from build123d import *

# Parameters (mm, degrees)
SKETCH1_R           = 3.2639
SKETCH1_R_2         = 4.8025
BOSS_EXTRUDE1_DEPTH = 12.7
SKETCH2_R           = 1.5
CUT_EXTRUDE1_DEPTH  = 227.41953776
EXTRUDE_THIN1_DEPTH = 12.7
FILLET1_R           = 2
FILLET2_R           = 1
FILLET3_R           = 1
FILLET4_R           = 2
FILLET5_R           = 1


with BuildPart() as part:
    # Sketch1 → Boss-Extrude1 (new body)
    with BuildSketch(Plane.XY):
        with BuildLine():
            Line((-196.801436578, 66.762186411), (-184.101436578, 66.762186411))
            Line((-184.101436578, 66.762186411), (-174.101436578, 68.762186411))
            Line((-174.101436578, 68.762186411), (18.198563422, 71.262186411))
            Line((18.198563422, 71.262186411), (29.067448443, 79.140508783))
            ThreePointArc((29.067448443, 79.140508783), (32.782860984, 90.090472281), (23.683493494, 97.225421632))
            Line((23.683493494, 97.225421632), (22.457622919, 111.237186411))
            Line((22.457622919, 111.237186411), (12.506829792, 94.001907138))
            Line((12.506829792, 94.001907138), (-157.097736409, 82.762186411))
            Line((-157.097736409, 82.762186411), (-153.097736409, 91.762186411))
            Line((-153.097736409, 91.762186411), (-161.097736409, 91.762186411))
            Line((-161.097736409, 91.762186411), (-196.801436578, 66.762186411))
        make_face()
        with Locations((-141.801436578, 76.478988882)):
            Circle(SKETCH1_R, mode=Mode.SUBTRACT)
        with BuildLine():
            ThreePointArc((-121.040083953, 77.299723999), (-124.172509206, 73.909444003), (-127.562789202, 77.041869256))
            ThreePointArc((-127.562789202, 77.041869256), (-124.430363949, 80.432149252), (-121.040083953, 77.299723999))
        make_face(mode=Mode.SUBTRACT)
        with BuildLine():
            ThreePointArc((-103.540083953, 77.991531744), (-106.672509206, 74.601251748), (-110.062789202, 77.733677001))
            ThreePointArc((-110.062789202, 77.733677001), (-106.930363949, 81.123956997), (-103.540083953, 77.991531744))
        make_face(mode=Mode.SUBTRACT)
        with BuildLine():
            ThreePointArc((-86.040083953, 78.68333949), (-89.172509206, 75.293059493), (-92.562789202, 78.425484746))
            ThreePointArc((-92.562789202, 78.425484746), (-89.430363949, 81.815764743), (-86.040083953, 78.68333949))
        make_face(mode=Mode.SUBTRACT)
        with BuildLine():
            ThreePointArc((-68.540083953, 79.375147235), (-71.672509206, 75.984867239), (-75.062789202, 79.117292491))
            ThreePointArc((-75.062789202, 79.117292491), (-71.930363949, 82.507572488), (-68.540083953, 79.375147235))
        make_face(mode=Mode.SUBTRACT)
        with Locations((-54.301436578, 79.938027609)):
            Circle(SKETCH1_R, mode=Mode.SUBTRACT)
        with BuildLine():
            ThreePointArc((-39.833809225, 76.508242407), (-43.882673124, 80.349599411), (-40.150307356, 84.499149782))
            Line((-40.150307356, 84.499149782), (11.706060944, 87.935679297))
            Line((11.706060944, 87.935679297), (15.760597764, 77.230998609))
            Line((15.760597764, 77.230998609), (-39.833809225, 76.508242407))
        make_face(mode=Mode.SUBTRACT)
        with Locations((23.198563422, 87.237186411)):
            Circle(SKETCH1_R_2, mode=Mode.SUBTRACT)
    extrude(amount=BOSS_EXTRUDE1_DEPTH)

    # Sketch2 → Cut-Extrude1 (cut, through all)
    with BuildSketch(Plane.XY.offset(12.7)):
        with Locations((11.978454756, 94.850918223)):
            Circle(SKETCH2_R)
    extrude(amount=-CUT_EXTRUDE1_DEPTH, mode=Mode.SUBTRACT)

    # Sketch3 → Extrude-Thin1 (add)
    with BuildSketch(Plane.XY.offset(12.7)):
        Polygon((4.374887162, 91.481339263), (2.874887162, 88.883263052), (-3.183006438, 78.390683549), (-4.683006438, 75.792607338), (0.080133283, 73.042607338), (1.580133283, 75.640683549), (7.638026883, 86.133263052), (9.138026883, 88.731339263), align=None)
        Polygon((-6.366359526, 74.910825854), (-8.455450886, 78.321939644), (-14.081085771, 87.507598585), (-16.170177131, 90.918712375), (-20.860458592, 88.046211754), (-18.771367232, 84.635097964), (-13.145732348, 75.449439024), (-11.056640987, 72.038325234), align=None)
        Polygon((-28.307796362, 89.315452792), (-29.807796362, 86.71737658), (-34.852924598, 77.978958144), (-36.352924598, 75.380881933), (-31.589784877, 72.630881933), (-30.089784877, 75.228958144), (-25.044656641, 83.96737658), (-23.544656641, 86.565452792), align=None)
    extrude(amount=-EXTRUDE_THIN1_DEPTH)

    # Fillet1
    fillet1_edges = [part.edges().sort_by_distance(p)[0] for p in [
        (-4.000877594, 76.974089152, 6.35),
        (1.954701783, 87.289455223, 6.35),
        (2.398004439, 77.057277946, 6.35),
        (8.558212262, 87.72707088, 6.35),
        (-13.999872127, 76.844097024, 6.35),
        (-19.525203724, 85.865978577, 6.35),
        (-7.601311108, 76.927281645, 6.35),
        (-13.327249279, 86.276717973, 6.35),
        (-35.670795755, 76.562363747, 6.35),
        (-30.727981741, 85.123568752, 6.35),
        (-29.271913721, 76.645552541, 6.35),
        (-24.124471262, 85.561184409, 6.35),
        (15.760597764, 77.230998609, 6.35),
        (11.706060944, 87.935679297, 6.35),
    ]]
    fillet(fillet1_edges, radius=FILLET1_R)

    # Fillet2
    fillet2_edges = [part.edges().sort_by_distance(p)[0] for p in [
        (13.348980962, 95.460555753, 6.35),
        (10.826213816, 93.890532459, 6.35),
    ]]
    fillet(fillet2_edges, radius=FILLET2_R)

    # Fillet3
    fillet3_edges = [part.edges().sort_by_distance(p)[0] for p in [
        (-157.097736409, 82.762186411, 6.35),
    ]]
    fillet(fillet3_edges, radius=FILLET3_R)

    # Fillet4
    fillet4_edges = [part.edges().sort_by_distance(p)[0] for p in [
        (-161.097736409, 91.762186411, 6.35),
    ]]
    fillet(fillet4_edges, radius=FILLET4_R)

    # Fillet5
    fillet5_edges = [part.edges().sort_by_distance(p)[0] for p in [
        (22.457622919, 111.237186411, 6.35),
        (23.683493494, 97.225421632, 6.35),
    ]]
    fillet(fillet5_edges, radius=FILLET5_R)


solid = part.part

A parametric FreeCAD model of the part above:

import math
import FreeCAD as App
import Part
import Sketcher
from FreeCAD import Vector
Q = App.Units.Quantity


def edges_at(feature, points):
    """Names of the edges that pass closest to the given points."""
    edges = feature.Shape.Edges
    near = lambda p: min(range(len(edges)), key=lambda i: edges[i].distToShape(Part.Vertex(*p))[0])
    return sorted({f"Edge{near(p) + 1}" for p in points})


def add_polygon(sketch, points):
    """Adds a closed chain of lines whose ends are joined by coincident constraints."""
    first, n = sketch.GeometryCount, len(points)
    for a, b in zip(points, points[1:] + points[:1]):
        sketch.addGeometry(Part.LineSegment(App.Vector(*a, 0), App.Vector(*b, 0)), False)
    for i in range(n):
        sketch.addConstraint(Sketcher.Constraint("Coincident", first + i, 2, first + (i + 1) % n, 1))

doc = App.newDocument("Part")
body = doc.addObject("PartDesign::Body", "Body")

sketch1 = body.newObject("Sketcher::SketchObject", "Sketch")
sketch1.AttachmentSupport = (doc.getObject("XY_Plane"), [""])
sketch1.MapMode = "FlatFace"
sketch1.addGeometry([
    Part.LineSegment(Vector(-196.801437, 66.762186, 0), Vector(-184.101437, 66.762186, 0)),
    Part.LineSegment(Vector(-184.101437, 66.762186, 0), Vector(-174.101437, 68.762186, 0)),
    Part.LineSegment(Vector(-174.101437, 68.762186, 0), Vector(18.198563, 71.262186, 0)),
    Part.LineSegment(Vector(18.198563, 71.262186, 0), Vector(29.067448, 79.140509, 0)),
    Part.ArcOfCircle(Part.Circle(Vector(23.198563, 87.237186, 0), Vector(0, 0, 1), 10), math.radians(-54.063484), math.radians(87.220465)),
    Part.LineSegment(Vector(23.683493, 97.225422, 0), Vector(22.457623, 111.237186, 0)),
    Part.LineSegment(Vector(22.457623, 111.237186, 0), Vector(12.50683, 94.001907, 0)),
    Part.LineSegment(Vector(12.50683, 94.001907, 0), Vector(-157.097736, 82.762186, 0)),
    Part.LineSegment(Vector(-157.097736, 82.762186, 0), Vector(-153.097736, 91.762186, 0)),
    Part.LineSegment(Vector(-153.097736, 91.762186, 0), Vector(-161.097736, 91.762186, 0)),
    Part.LineSegment(Vector(-161.097736, 91.762186, 0), Vector(-196.801437, 66.762186, 0)),
    Part.Circle(Vector(-141.801437, 76.478989, 0), Vector(0, 0, 1), 3.2639),
    Part.Circle(Vector(-124.301437, 77.170797, 0), Vector(0, 0, 1), 3.2639),
    Part.Circle(Vector(-106.801437, 77.862604, 0), Vector(0, 0, 1), 3.2639),
    Part.ArcOfCircle(Part.Circle(Vector(-89.301437, 78.554412, 0), Vector(0, 0, 1), 3.2639), math.radians(2.263831), math.radians(182.263831)),
    Part.ArcOfCircle(Part.Circle(Vector(-89.301437, 78.554412, 0), Vector(0, 0, 1), 3.2639), math.radians(-177.736169), math.radians(2.263831)),
    Part.ArcOfCircle(Part.Circle(Vector(-71.801437, 79.24622, 0), Vector(0, 0, 1), 3.2639), math.radians(2.263831), math.radians(182.263831)),
    Part.ArcOfCircle(Part.Circle(Vector(-71.801437, 79.24622, 0), Vector(0, 0, 1), 3.2639), math.radians(-177.736169), math.radians(2.263831)),
    Part.Circle(Vector(-54.301437, 79.938028, 0), Vector(0, 0, 1), 3.2639),
    Part.LineSegment(Vector(15.760598, 77.230999, 0), Vector(-39.833809, 76.508242, 0)),
    Part.ArcOfCircle(Part.Circle(Vector(-39.885807, 80.507904, 0), Vector(0, 0, 1), 4), math.radians(93.791456), math.radians(270.744833)),
    Part.LineSegment(Vector(-40.150307, 84.49915, 0), Vector(11.706061, 87.935679, 0)),
    Part.LineSegment(Vector(11.706061, 87.935679, 0), Vector(15.760598, 77.230999, 0)),
    Part.Circle(Vector(23.198563, 87.237186, 0), Vector(0, 0, 1), 4.8025),
], False)
sketch1.addConstraint([
    Sketcher.Constraint("Coincident", 0, 2, 1, 1),
    Sketcher.Constraint("Coincident", 1, 2, 2, 1),
    Sketcher.Constraint("Coincident", 2, 2, 3, 1),
    Sketcher.Constraint("Coincident", 3, 2, 4, 1),
    Sketcher.Constraint("Coincident", 4, 2, 5, 1),
    Sketcher.Constraint("Coincident", 5, 2, 6, 1),
    Sketcher.Constraint("Coincident", 6, 2, 7, 1),
    Sketcher.Constraint("Coincident", 7, 2, 8, 1),
    Sketcher.Constraint("Coincident", 8, 2, 9, 1),
    Sketcher.Constraint("Coincident", 9, 2, 10, 1),
    Sketcher.Constraint("Coincident", 10, 2, 0, 1),
    Sketcher.Constraint("Coincident", 14, 1, 15, 2),
    Sketcher.Constraint("Coincident", 15, 1, 14, 2),
    Sketcher.Constraint("Coincident", 16, 1, 17, 2),
    Sketcher.Constraint("Coincident", 17, 1, 16, 2),
    Sketcher.Constraint("Coincident", 19, 2, 20, 2),
    Sketcher.Constraint("Coincident", 20, 1, 21, 1),
    Sketcher.Constraint("Coincident", 21, 2, 22, 1),
    Sketcher.Constraint("Coincident", 22, 2, 19, 1),
    Sketcher.Constraint("Horizontal", 0),
    Sketcher.Constraint("Horizontal", 9),
    Sketcher.Constraint("Coincident", 23, 3, 4, 3),
    Sketcher.Constraint("Radius", 4, 10.0),
    Sketcher.Constraint("Radius", 20, 4.0),
    Sketcher.Constraint("DistanceX", 9, 2, 9, 1, 8.0),
    Sketcher.Constraint("Diameter", 23, 9.605),
    Sketcher.Constraint("DistanceX", 0, 1, 0, 2, 12.7),
    Sketcher.Constraint("DistanceX", 11, 3, 4, 3, 165.0),
    Sketcher.Constraint("DistanceX", 11, 3, 13, 3, 35.0),
    Sketcher.Constraint("DistanceX", 12, 3, 14, 3, 35.0),
    Sketcher.Constraint("DistanceX", 12, 3, 15, 3, 35.0),
    Sketcher.Constraint("DistanceX", 13, 3, 16, 3, 35.0),
    Sketcher.Constraint("DistanceX", 13, 3, 17, 3, 35.0),
    Sketcher.Constraint("DistanceX", 15, 3, 18, 3, 35.0),
    Sketcher.Constraint("DistanceX", 0, 2, 1, 2, 10.0),
    Sketcher.Constraint("DistanceY", 0, 2, 1, 2, 2.0),
    Sketcher.Constraint("DistanceX", 2, 2, 23, 3, 5.0),
    Sketcher.Constraint("DistanceY", 23, 3, 5, 2, 24.0),
    Sketcher.Constraint("DistanceY", 1, 2, 7, 2, 14.0),
    Sketcher.Constraint("DistanceX", 7, 2, 8, 2, 4.0),
    Sketcher.Constraint("DistanceY", 7, 2, 8, 2, 9.0),
    Sketcher.Constraint("Diameter", 11, 6.5278),
    Sketcher.Constraint("Diameter", 12, 6.5278),
    Sketcher.Constraint("Diameter", 13, 6.5278),
    Sketcher.Constraint("Diameter", 18, 6.5278),
    Sketcher.Constraint("Radius", 14, 3.2639),
    Sketcher.Constraint("Radius", 16, 3.2639),
    Sketcher.Constraint("DistanceX", 11, 3, 12, 3, 17.5),
    Sketcher.Constraint("DistanceX", 0, 2, 11, 3, 42.3),
    Sketcher.Constraint("DistanceX", 14, 1, 16, 1, 17.5),
    Sketcher.Constraint("DistanceY", -1, 1, 22, 2, 77.230999),
    Sketcher.Constraint("DistanceY", 2, 2, 23, 3, 15.975),
    Sketcher.Constraint("DistanceX", 20, 3, 4, 2, 63.5693),
    Sketcher.Constraint("DistanceY", 3, 2, 6, 2, 14.861398),
    Sketcher.Constraint("DistanceX", 7, 2, 11, 3, 15.2963),
    Sketcher.Constraint("DistanceX", 20, 1, 20, 3, 0.2645),
    Sketcher.Constraint("DistanceX", 20, 1, 19, 2, 0.316498),
    Sketcher.Constraint("Distance", 2, 192.31625),
    Sketcher.Constraint("Distance", 22, 11.44681),
    Sketcher.Constraint("DistanceY", -1, 1, 11, 3, 76.478989),
    Sketcher.Constraint("DistanceY", -1, 1, 16, 3, 79.24622),
    Sketcher.Constraint("DistanceX", -1, 1, 3, 2, 29.067448),
    Sketcher.Constraint("DistanceY", -1, 1, 3, 2, 79.140509),
    Sketcher.Constraint("DistanceY", -1, 1, 4, 2, 97.225422),
    Sketcher.Constraint("DistanceX", -1, 1, 6, 2, 12.50683),
    Sketcher.Constraint("DistanceY", -1, 1, 14, 1, 78.683339),
    Sketcher.Constraint("DistanceX", 15, 1, -1, 1, 92.562789),
    Sketcher.Constraint("DistanceX", 17, 1, -1, 1, 75.062789),
    Sketcher.Constraint("DistanceX", 19, 2, -1, 1, 39.833809),
    Sketcher.Constraint("DistanceY", -1, 1, 20, 1, 84.49915),
    Sketcher.Constraint("DistanceX", -1, 1, 21, 2, 11.706061),
    Sketcher.Constraint("DistanceY", -1, 1, 21, 2, 87.935679),
    Sketcher.Constraint("DistanceY", 12, 3, 4, 3, 10.06639),
    Sketcher.Constraint("DistanceY", 18, 3, 23, 3, 7.299159),
    Sketcher.Constraint("DistanceX", 5, 2, 4, 2, 1.225871),
    Sketcher.Constraint("DistanceY", 13, 3, 15, 1, 0.56288),
    Sketcher.Constraint("DistanceY", 16, 1, 18, 3, 0.56288),
])
pad1 = body.newObject("PartDesign::Pad", "Pad")
pad1.Profile = sketch1
pad1.Length = 12.7

sketch2 = body.newObject("Sketcher::SketchObject", "Sketch001")
sketch2.AttachmentSupport = (doc.getObject("XY_Plane"), [""])
sketch2.MapMode = "FlatFace"
sketch2.AttachmentOffset = App.Placement(Vector(0, 0, 12.7), App.Rotation())
sketch2.addGeometry(Part.Circle(Vector(11.978455, 94.850918, 0), Vector(0, 0, 1), 1.5), False)
sketch2.addConstraint([
    Sketcher.Constraint("Diameter", 0, 3.0),
    Sketcher.Constraint("DistanceY", -1, 1, 0, 3, 94.850918),
    Sketcher.Constraint("DistanceX", -1, 1, 0, 3, 11.978455),
])
pocket1 = body.newObject("PartDesign::Pocket", "Pocket")
pocket1.Profile = sketch2
pocket1.Type = "ThroughAll"

sketch3 = body.newObject("Sketcher::SketchObject", "Sketch002")
sketch3.AttachmentSupport = (doc.getObject("XY_Plane"), [""])
sketch3.MapMode = "FlatFace"
sketch3.AttachmentOffset = App.Placement(Vector(0, 0, 12.7), App.Rotation())
add_polygon(sketch3, [(4.374887, 91.481339), (2.874887, 88.883263), (-3.183006, 78.390684), (-4.683006, 75.792607), (0.080133, 73.042607), (1.580133, 75.640684), (7.638027, 86.133263), (9.138027, 88.731339)])
add_polygon(sketch3, [(-6.36636, 74.910826), (-8.455451, 78.32194), (-14.081086, 87.507599), (-16.170177, 90.918712), (-20.860459, 88.046212), (-18.771367, 84.635098), (-13.145732, 75.449439), (-11.056641, 72.038325)])
add_polygon(sketch3, [(-28.307796, 89.315453), (-29.807796, 86.717377), (-34.852925, 77.978958), (-36.352925, 75.380882), (-31.589785, 72.630882), (-30.089785, 75.228958), (-25.044657, 83.967377), (-23.544657, 86.565453)])
sketch3.addConstraint([
    Sketcher.Constraint("Parallel", 0, 1),
    Sketcher.Constraint("Parallel", 1, 2),
    Sketcher.Constraint("Perpendicular", 2, 3),
    Sketcher.Constraint("Perpendicular", 3, 4),
    Sketcher.Constraint("Parallel", 4, 5),
    Sketcher.Constraint("Parallel", 5, 6),
    Sketcher.Constraint("Perpendicular", 6, 7),
    Sketcher.Constraint("Parallel", 8, 9),
    Sketcher.Constraint("Parallel", 9, 10),
    Sketcher.Constraint("Perpendicular", 10, 11),
    Sketcher.Constraint("Perpendicular", 11, 12),
    Sketcher.Constraint("Parallel", 12, 13),
    Sketcher.Constraint("Parallel", 13, 14),
    Sketcher.Constraint("Perpendicular", 14, 15),
    Sketcher.Constraint("Perpendicular", 7, 16),
    Sketcher.Constraint("Parallel", 16, 17),
    Sketcher.Constraint("Parallel", 17, 18),
    Sketcher.Constraint("Perpendicular", 18, 19),
    Sketcher.Constraint("Perpendicular", 19, 20),
    Sketcher.Constraint("Parallel", 20, 21),
    Sketcher.Constraint("Parallel", 21, 22),
    Sketcher.Constraint("Perpendicular", 22, 23),
    Sketcher.Constraint("Equal", 0, 2),
    Sketcher.Constraint("Equal", 2, 4),
    Sketcher.Constraint("Equal", 1, 5),
    Sketcher.Constraint("Equal", 8, 10),
    Sketcher.Constraint("Equal", 7, 11),
    Sketcher.Constraint("Equal", 10, 12),
    Sketcher.Constraint("Equal", 9, 13),
    Sketcher.Constraint("Equal", 6, 16),
    Sketcher.Constraint("Equal", 16, 18),
    Sketcher.Constraint("Equal", 15, 19),
    Sketcher.Constraint("Equal", 18, 20),
    Sketcher.Constraint("Equal", 17, 21),
    Sketcher.Constraint("Angle", 0, Q("-120 deg")),
    Sketcher.Constraint("Distance", 0, 3.0),
    Sketcher.Constraint("Distance", 8, 4.0),
    Sketcher.Constraint("Distance", 3, 5.5),
    Sketcher.Constraint("DistanceY", -1, 1, 9, 2, 87.507599),
    Sketcher.Constraint("DistanceY", 11, 2, 10, 2, 2.872501),
    Sketcher.Constraint("DistanceX", 21, 2, 11, 2, 4.184198),
    Sketcher.Constraint("Distance", 9, 10.771448),
    Sketcher.Constraint("DistanceY", -1, 1, 6, 2, 88.731339),
    Sketcher.Constraint("DistanceX", 8, 2, -1, 1, 8.455451),
    Sketcher.Constraint("DistanceY", -1, 1, 17, 2, 77.978958),
    Sketcher.Constraint("DistanceY", 1, 2, 0, 2, 10.49258),
    Sketcher.Constraint("DistanceX", 8, 2, 0, 2, 11.330338),
    Sketcher.Constraint("DistanceY", 12, 2, 16, 2, 2.082279),
])
pad2 = body.newObject("PartDesign::Pad", "Pad001")
pad2.Profile = sketch3
pad2.Length = 12.7
pad2.Reversed = True
doc.recompute()

fillet = body.newObject("PartDesign::Fillet", "Fillet")
fillet.Base = (pad2, edges_at(pad2, [
    (-4.001, 76.974, 6.35),
    (1.955, 87.289, 6.35),
    (2.398, 77.057, 6.35),
    (8.558, 87.727, 6.35),
    (-14, 76.844, 6.35),
    (-19.525, 85.866, 6.35),
    (-7.601, 76.927, 6.35),
    (-13.327, 86.277, 6.35),
    (-35.671, 76.562, 6.35),
    (-30.728, 85.124, 6.35),
    (-29.272, 76.646, 6.35),
    (-24.124, 85.561, 6.35),
    (15.761, 77.231, 6.35),
    (11.706, 87.936, 6.35),
]))
fillet.Radius = 2
doc.recompute()

fillet2 = body.newObject("PartDesign::Fillet", "Fillet001")
fillet2.Base = (fillet, edges_at(fillet, [(13.349, 95.461, 6.35), (10.826, 93.891, 6.35)]))
fillet2.Radius = 1
doc.recompute()

fillet3 = body.newObject("PartDesign::Fillet", "Fillet002")
fillet3.Base = (fillet2, edges_at(fillet2, [(-157.098, 82.762, 6.35)]))
fillet3.Radius = 1
doc.recompute()

fillet4 = body.newObject("PartDesign::Fillet", "Fillet003")
fillet4.Base = (fillet3, edges_at(fillet3, [(-161.098, 91.762, 6.35)]))
fillet4.Radius = 2
doc.recompute()

fillet5 = body.newObject("PartDesign::Fillet", "Fillet004")
fillet5.Base = (fillet4, edges_at(fillet4, [(22.458, 111.237, 6.35), (23.683, 97.225, 6.35)]))
fillet5.Radius = 1

doc.recompute()
